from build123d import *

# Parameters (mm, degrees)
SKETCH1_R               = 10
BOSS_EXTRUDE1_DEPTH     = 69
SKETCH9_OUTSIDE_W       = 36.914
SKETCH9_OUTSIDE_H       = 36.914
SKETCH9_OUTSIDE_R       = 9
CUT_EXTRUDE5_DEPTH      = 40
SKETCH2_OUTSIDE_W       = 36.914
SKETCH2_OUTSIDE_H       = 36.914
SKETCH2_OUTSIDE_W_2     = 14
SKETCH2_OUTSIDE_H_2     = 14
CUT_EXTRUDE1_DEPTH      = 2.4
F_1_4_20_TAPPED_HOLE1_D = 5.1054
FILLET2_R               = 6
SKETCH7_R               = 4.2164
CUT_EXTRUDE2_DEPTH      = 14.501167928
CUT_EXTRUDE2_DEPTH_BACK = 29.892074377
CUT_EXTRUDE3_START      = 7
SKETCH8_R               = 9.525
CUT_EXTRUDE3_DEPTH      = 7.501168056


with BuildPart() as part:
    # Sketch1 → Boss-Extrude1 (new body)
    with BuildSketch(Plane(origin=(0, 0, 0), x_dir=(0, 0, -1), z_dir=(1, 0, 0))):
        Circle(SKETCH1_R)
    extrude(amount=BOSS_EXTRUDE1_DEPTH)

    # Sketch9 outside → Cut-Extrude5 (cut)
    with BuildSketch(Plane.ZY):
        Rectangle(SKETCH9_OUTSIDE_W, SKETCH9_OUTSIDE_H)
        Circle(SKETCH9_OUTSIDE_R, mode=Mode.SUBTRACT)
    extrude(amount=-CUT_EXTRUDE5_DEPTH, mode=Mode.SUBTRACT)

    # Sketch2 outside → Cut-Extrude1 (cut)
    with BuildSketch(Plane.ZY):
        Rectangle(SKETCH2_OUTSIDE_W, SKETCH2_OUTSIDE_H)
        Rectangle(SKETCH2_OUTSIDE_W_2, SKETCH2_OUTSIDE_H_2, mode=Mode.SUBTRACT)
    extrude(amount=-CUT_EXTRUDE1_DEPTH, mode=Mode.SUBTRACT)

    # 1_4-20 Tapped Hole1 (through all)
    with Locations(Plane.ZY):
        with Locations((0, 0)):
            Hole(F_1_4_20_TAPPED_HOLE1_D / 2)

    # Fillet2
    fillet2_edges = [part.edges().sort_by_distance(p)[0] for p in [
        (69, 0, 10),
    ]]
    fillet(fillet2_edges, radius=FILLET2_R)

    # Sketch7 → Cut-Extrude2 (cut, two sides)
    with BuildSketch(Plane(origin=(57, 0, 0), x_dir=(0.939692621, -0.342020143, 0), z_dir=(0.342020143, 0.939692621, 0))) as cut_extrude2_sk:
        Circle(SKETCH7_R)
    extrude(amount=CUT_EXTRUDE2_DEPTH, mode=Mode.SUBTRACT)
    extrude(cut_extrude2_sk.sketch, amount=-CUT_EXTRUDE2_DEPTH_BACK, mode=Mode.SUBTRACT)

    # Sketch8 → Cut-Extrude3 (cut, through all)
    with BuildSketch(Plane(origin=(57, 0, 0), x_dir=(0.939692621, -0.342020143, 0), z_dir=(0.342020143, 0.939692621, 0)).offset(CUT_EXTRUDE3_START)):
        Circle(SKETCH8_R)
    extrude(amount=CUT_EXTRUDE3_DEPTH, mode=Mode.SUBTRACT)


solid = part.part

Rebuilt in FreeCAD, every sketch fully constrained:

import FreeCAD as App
import Part
import Sketcher

V = App.Vector
Q = App.Units.Quantity


def edges_at(feature, points):
    """Names of the edges that pass closest to the given points."""
    edges = feature.Shape.Edges
    near = lambda p: min(range(len(edges)), key=lambda i: edges[i].distToShape(Part.Vertex(*p))[0])
    return sorted({f"Edge{near(p) + 1}" for p in points})

doc = App.newDocument("Part")
body = doc.addObject("PartDesign::Body", "Body")

# Sketch on YZ plane
sketch1 = body.newObject("Sketcher::SketchObject", "Sketch")
sketch1.AttachmentSupport = (doc.getObject("YZ_Plane"), [""])
sketch1.MapMode = "FlatFace"
sketch1.addGeometry(Part.Circle(V(0, 0, 0), V(0, 0, 1), 10), False)
sketch1.addConstraint([
    Sketcher.Constraint("Coincident", 0, 3, -1, 1),
    Sketcher.Constraint("Diameter", 0, Q("20 mm")),
])
pad1 = body.newObject("PartDesign::Pad", "Pad")
pad1.Profile = sketch1
pad1.Length = 69

# Sketch on YZ plane
sketch2 = body.newObject("Sketcher::SketchObject", "Sketch001")
sketch2.AttachmentSupport = (doc.getObject("YZ_Plane"), [""])
sketch2.MapMode = "FlatFace"
sketch2.addGeometry([
    Part.LineSegment(V(18, -18, 0), V(-18, -18, 0)),  # 0
    Part.LineSegment(V(-18, -18, 0), V(-18, 18, 0)),  # 1
    Part.LineSegment(V(-18, 18, 0), V(18, 18, 0)),  # 2
    Part.LineSegment(V(18, 18, 0), V(18, -18, 0)),  # 3
    Part.Circle(V(0, 0, 0), V(0, 0, 1), 9),  # 4
], False)
sketch2.addConstraint([
    Sketcher.Constraint("Coincident", 0, 2, 1, 1),
    Sketcher.Constraint("Coincident", 1, 2, 2, 1),
    Sketcher.Constraint("Coincident", 2, 2, 3, 1),
    Sketcher.Constraint("Coincident", 3, 2, 0, 1),
    Sketcher.Constraint("Horizontal", 0),
    Sketcher.Constraint("Vertical", 1),
    Sketcher.Constraint("Horizontal", 2),
    Sketcher.Constraint("Vertical", 3),
    Sketcher.Constraint("Coincident", 4, 3, -1, 1),
    Sketcher.Constraint("Symmetric", 0, 2, 2, 2, -1, 1),
    Sketcher.Constraint("Equal", 2, 1),
    Sketcher.Constraint("Diameter", 4, Q("18 mm")),
    Sketcher.Constraint("DistanceX", 0, 2, 0, 1, Q("36.914 mm")),
])
pocket1 = body.newObject("PartDesign::Pocket", "Pocket")
pocket1.Profile = sketch2
pocket1.Length = 40
pocket1.Reversed = True

# Sketch on YZ plane
sketch3 = body.newObject("Sketcher::SketchObject", "Sketch002")
sketch3.AttachmentSupport = (doc.getObject("YZ_Plane"), [""])
sketch3.MapMode = "FlatFace"
sketch3.addGeometry([
    Part.LineSegment(V(18, -18, 0), V(-18, -18, 0)),  # 0
    Part.LineSegment(V(-18, -18, 0), V(-18, 18, 0)),  # 1
    Part.LineSegment(V(-18, 18, 0), V(18, 18, 0)),  # 2
    Part.LineSegment(V(18, 18, 0), V(18, -18, 0)),  # 3
    Part.LineSegment(V(-7, 7, 0), V(-7, -7, 0)),  # 4
    Part.LineSegment(V(-7, -7, 0), V(7, -7, 0)),  # 5
    Part.LineSegment(V(7, -7, 0), V(7, 7, 0)),  # 6
    Part.LineSegment(V(7, 7, 0), V(-7, 7, 0)),  # 7
], False)
sketch3.addConstraint([
    Sketcher.Constraint("Coincident", 0, 2, 1, 1),
    Sketcher.Constraint("Coincident", 1, 2, 2, 1),
    Sketcher.Constraint("Coincident", 2, 2, 3, 1),
    Sketcher.Constraint("Coincident", 3, 2, 0, 1),
    Sketcher.Constraint("Coincident", 4, 2, 5, 1),
    Sketcher.Constraint("Coincident", 5, 2, 6, 1),
    Sketcher.Constraint("Coincident", 6, 2, 7, 1),
    Sketcher.Constraint("Coincident", 7, 2, 4, 1),
    Sketcher.Constraint("Horizontal", 0),
    Sketcher.Constraint("Vertical", 1),
    Sketcher.Constraint("Horizontal", 2),
    Sketcher.Constraint("Vertical", 3),
    Sketcher.Constraint("Vertical", 4),
    Sketcher.Constraint("Horizontal", 5),
    Sketcher.Constraint("Vertical", 6),
    Sketcher.Constraint("Horizontal", 7),
    Sketcher.Constraint("Symmetric", 0, 2, 2, 2, -1, 1),
    Sketcher.Constraint("Symmetric", 4, 2, 6, 2, -1, 1),
    Sketcher.Constraint("Equal", 2, 1),
    Sketcher.Constraint("Equal", 7, 4),
    Sketcher.Constraint("DistanceX", 5, 1, 5, 2, Q("14 mm")),
    Sketcher.Constraint("DistanceX", 0, 2, 0, 1, Q("36.914 mm")),
])
pocket2 = body.newObject("PartDesign::Pocket", "Pocket001")
pocket2.Profile = sketch3
pocket2.Length = 2.4
pocket2.Reversed = True

# Sketch on YZ plane
sketch4 = body.newObject("Sketcher::SketchObject", "Sketch003")
sketch4.AttachmentSupport = (doc.getObject("YZ_Plane"), [""])
sketch4.MapMode = "FlatFace"
sketch4.addGeometry(Part.Circle(V(0, 0, 0), V(0, 0, 1), 2.6), False)
sketch4.addConstraint([
    Sketcher.Constraint("Coincident", 0, 3, -1, 1),
    Sketcher.Constraint("Diameter", 0, Q("5.1054 mm")),
])
doc.recompute()
hole = body.newObject("PartDesign::Hole", "Hole")
hole.Profile = sketch4
hole.ThreadType = "None"
hole.Diameter = 5.1054
hole.DepthType = "ThroughAll"
hole.Reversed = True
doc.recompute()

fillet = body.newObject("PartDesign::Fillet", "Fillet")
fillet.Base = (hole, edges_at(hole, [(69, 0, 10)]))
fillet.Radius = 6

# Sketch on an angled plane
sketch5 = body.newObject("Sketcher::SketchObject", "Sketch004")
sketch5.Placement = App.Placement(V(57, 0, 0), App.Rotation(V(0.939692621, -0.342020143, 0), V(0, 0, -1), V(0.342020143, 0.939692621, 0), "ZXY"))
sketch5.addGeometry(Part.Circle(V(0, 0, 0), V(0, 0, 1), 4.2), False)
sketch5.addConstraint([
    Sketcher.Constraint("Coincident", 0, 3, -1, 1),
    Sketcher.Constraint("Diameter", 0, Q("8.4328 mm")),
])
pocket3 = body.newObject("PartDesign::Pocket", "Pocket002")
pocket3.Profile = sketch5
pocket3.Type = "ThroughAll"
pocket3.Midplane = True

# Sketch on an angled plane
sketch6 = body.newObject("Sketcher::SketchObject", "Sketch005")
sketch6.Placement = App.Placement(V(59.394141, 6.577848, 0), App.Rotation(V(0.939692621, -0.342020143, 0), V(0, 0, -1), V(0.342020143, 0.939692621, 0), "ZXY"))
sketch6.addGeometry(Part.Circle(V(0, 0, 0), V(0, 0, 1), 10), False)
sketch6.addConstraint([
    Sketcher.Constraint("Coincident", 0, 3, -1, 1),
    Sketcher.Constraint("Diameter", 0, Q("19.05 mm")),
])
pocket4 = body.newObject("PartDesign::Pocket", "Pocket003")
pocket4.Profile = sketch6
pocket4.Type = "ThroughAll"
pocket4.Reversed = True

doc.recompute()
